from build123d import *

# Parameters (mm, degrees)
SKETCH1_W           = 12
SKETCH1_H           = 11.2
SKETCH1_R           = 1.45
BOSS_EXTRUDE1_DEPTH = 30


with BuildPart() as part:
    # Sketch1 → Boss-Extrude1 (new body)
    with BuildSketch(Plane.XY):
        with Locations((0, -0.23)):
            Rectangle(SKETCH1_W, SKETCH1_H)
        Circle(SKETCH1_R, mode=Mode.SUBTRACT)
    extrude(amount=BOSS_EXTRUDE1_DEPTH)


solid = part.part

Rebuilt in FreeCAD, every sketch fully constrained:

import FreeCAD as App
import Part
import Sketcher
from FreeCAD import Vector
Q = App.Units.Quantity


def add_polygon(sketch, points):
    """Adds a closed chain of lines whose ends are joined by coincident constraints."""
    first, n = sketch.GeometryCount, len(points)
    for a, b in zip(points, points[1:] + points[:1]):
        sketch.addGeometry(Part.LineSegment(App.Vector(*a, 0), App.Vector(*b, 0)), False)
    for i in range(n):
        sketch.addConstraint(Sketcher.Constraint("Coincident", first + i, 2, first + (i + 1) % n, 1))

doc = App.newDocument("Part")
params = doc.addObject("Spreadsheet::Sheet", "Params")
for row, (alias, value) in enumerate([
    ("sketch1_diameter", "2.9 mm"),
    ("sketch1_width", "12 mm"),
    ("sketch1_height", "11.2 mm"),
    ("pad1_length", "30 mm"),
], start=1):
    params.set(f"A{row}", alias)
    params.set(f"B{row}", "=" + value)
    params.setAlias(f"B{row}", alias)

body = doc.addObject("PartDesign::Body", "Body")

# Sketch on XY plane
sketch1 = body.newObject("Sketcher::SketchObject", "Sketch")
sketch1.AttachmentSupport = (doc.getObject("XY_Plane"), [""])
sketch1.MapMode = "FlatFace"
add_polygon(sketch1, [(-6, 5.37), (-6, -5.83), (6, -5.83), (6, 5.37)])  # lines 0-3
sketch1.addGeometry(Part.Circle(Vector(0, 0, 0), Vector(0, 0, 1), 1.45), False)  # 4
sketch1.addConstraint([
    Sketcher.Constraint("Vertical", 0),
    Sketcher.Constraint("Horizontal", 1),
    Sketcher.Constraint("Vertical", 2),
    Sketcher.Constraint("Horizontal", 3),
    Sketcher.Constraint("Coincident", 4, 3, -1, 1),
    Sketcher.Constraint("Diameter", 4, Q("2.9 mm")),
    Sketcher.Constraint("DistanceX", 1, 1, 1, 2, Q("12 mm")),
    Sketcher.Constraint("DistanceY", 0, 2, 0, 1, Q("11.2 mm")),
    Sketcher.Constraint("DistanceX", 0, 2, -1, 1, Q("6 mm")),
    Sketcher.Constraint("DistanceY", 0, 2, -1, 1, Q("5.83 mm")),
])
sketch1.setExpression("Constraints[9]", "Params.sketch1_diameter")
sketch1.setExpression("Constraints[10]", "Params.sketch1_width")
sketch1.setExpression("Constraints[11]", "Params.sketch1_height")
pad1 = body.newObject("PartDesign::Pad", "Pad")
pad1.Profile = sketch1
pad1.setExpression("Length", "Params.pad1_length")

doc.recompute()
